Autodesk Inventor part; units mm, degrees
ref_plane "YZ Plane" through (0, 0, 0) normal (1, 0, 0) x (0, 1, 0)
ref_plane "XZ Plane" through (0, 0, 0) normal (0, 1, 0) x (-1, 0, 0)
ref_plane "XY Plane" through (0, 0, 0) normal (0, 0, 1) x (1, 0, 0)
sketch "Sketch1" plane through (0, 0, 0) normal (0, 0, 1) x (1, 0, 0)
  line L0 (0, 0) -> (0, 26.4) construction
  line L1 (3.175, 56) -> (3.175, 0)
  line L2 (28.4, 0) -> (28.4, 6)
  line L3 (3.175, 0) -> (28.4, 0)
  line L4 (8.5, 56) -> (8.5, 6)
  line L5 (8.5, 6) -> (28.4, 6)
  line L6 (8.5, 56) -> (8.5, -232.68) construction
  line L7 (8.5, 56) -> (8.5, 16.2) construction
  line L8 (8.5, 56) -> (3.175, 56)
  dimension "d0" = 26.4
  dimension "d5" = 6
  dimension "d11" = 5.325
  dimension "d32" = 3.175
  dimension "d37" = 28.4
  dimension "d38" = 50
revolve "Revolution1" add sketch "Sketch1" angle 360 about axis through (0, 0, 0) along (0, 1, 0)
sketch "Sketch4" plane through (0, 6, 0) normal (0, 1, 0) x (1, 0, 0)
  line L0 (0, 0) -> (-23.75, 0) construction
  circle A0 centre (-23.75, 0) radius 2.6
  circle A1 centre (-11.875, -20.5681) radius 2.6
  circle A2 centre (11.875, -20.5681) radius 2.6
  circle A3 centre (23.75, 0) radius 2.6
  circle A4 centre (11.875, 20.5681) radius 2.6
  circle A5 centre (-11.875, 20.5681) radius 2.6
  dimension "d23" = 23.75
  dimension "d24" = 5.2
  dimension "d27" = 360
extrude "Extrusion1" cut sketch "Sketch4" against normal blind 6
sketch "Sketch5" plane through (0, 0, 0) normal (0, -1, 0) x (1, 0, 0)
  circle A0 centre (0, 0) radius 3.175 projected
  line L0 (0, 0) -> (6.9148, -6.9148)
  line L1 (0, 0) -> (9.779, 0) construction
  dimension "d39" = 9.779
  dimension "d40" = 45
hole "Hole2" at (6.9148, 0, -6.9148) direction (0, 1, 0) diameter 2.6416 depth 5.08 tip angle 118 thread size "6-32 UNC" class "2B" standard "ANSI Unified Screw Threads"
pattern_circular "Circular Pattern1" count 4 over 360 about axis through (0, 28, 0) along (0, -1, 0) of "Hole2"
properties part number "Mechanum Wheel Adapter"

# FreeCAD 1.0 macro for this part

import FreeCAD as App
import Part
import Sketcher
Q = App.Units.Quantity

doc = App.newDocument("Part")
body = doc.addObject("PartDesign::Body", "Body")

sketch1 = body.newObject("Sketcher::SketchObject", "Sketch")
sketch1.AttachmentSupport = (doc.getObject("XY_Plane"), [""])
sketch1.MapMode = "FlatFace"
sketch1.addGeometry([
    Part.LineSegment(App.Vector(8, 56, 0), App.Vector(3, 56, 0)),
    Part.LineSegment(App.Vector(3, 56, 0), App.Vector(3, 0, 0)),
    Part.LineSegment(App.Vector(3, 0, 0), App.Vector(28, 0, 0)),
    Part.LineSegment(App.Vector(28, 0, 0), App.Vector(28, 6, 0)),
    Part.LineSegment(App.Vector(28, 6, 0), App.Vector(8, 6, 0)),
    Part.LineSegment(App.Vector(8, 6, 0), App.Vector(8, 56, 0)),
], False)
sketch1.addConstraint([
    Sketcher.Constraint("Coincident", 0, 2, 1, 1),
    Sketcher.Constraint("Coincident", 1, 2, 2, 1),
    Sketcher.Constraint("Coincident", 2, 2, 3, 1),
    Sketcher.Constraint("Coincident", 3, 2, 4, 1),
    Sketcher.Constraint("Coincident", 4, 2, 5, 1),
    Sketcher.Constraint("Coincident", 5, 2, 0, 1),
    Sketcher.Constraint("Horizontal", 0),
    Sketcher.Constraint("Vertical", 1),
    Sketcher.Constraint("Horizontal", 2),
    Sketcher.Constraint("Vertical", 3),
    Sketcher.Constraint("Horizontal", 4),
    Sketcher.Constraint("Vertical", 5),
    Sketcher.Constraint("PointOnObject", 1, 2, -1),
    Sketcher.Constraint("DistanceY", 3, 1, 3, 2, Q("6 mm")),
    Sketcher.Constraint("DistanceY", 5, 1, 5, 2, Q("50 mm")),
    Sketcher.Constraint("DistanceX", -1, 1, 2, 2, Q("28.4 mm")),
    Sketcher.Constraint("DistanceX", 0, 2, 0, 1, Q("5.325 mm")),
    Sketcher.Constraint("DistanceX", 4, 2, 4, 1, Q("19.9 mm")),
])
revolution = body.newObject("PartDesign::Revolution", "Revolution")
revolution.Profile = sketch1
revolution.ReferenceAxis = (sketch1, ["V_Axis"])
revolution.Angle = 360

sketch2 = body.newObject("Sketcher::SketchObject", "Sketch001")
sketch2.AttachmentSupport = (doc.getObject("XZ_Plane"), [""])
sketch2.MapMode = "FlatFace"
sketch2.AttachmentOffset = App.Placement(App.Vector(0, 0, -6), App.Rotation())
sketch2.addGeometry([
    Part.Circle(App.Vector(-23.8, 0, 0), App.Vector(0, 0, 1), 2.6),
    Part.Circle(App.Vector(-11.9, 20.6, 0), App.Vector(0, 0, 1), 2.6),
    Part.Circle(App.Vector(11.9, 20.6, 0), App.Vector(0, 0, 1), 2.6),
    Part.Circle(App.Vector(23.8, 0, 0), App.Vector(0, 0, 1), 2.6),
    Part.Circle(App.Vector(11.9, -20.6, 0), App.Vector(0, 0, 1), 2.6),
    Part.Circle(App.Vector(-11.9, -20.6, 0), App.Vector(0, 0, 1), 2.6),
], False)
sketch2.addConstraint([
    Sketcher.Constraint("Equal", 0, 1),
    Sketcher.Constraint("Equal", 1, 2),
    Sketcher.Constraint("Equal", 2, 3),
    Sketcher.Constraint("Equal", 3, 4),
    Sketcher.Constraint("Equal", 4, 5),
    Sketcher.Constraint("Symmetric", 0, 3, 3, 3, -1, 1),
    Sketcher.Constraint("Symmetric", 1, 3, 4, 3, -1, 1),
    Sketcher.Constraint("Symmetric", 2, 3, 5, 3, -1, 1),
    Sketcher.Constraint("Symmetric", 1, 3, 2, 3, -2),
    Sketcher.Constraint("PointOnObject", 0, 3, -1),
    Sketcher.Constraint("Diameter", 0, Q("5.2 mm")),
    Sketcher.Constraint("DistanceX", 0, 3, -1, 1, Q("23.75 mm")),
    Sketcher.Constraint("DistanceX", 1, 3, 2, 3, Q("23.75 mm")),
    Sketcher.Constraint("DistanceY", -1, 1, 1, 3, Q("20.568 mm")),
])
pocket1 = body.newObject("PartDesign::Pocket", "Pocket")
pocket1.Profile = sketch2
pocket1.Length = 6
pocket1.Reversed = True

sketch3 = body.newObject("Sketcher::SketchObject", "Sketch002")
sketch3.AttachmentSupport = (doc.getObject("XZ_Plane"), [""])
sketch3.MapMode = "FlatFace"
sketch3.addGeometry(Part.Circle(App.Vector(6.9, -6.9, 0), App.Vector(0, 0, 1), 1.3), False)
sketch3.addConstraint([
    Sketcher.Constraint("Diameter", 0, Q("2.6416 mm")),
    Sketcher.Constraint("DistanceX", -1, 1, 0, 3, Q("6.9148 mm")),
    Sketcher.Constraint("DistanceY", 0, 3, -1, 1, Q("6.9148 mm")),
])
doc.recompute()
hole = body.newObject("PartDesign::Hole", "Hole")
hole.Profile = sketch3
hole.ThreadType = "None"
hole.Diameter = 2.6416
hole.DepthType = "Dimension"
hole.Depth = 5.08
hole.DrillPoint = "Angled"
hole.DrillPointAngle = 118
doc.recompute()

polarpattern = body.newObject("PartDesign::PolarPattern", "PolarPattern")
polarpattern.Originals = [hole]
polarpattern.Axis = (doc.getObject("Y_Axis"), [""])
polarpattern.Angle = 360
polarpattern.Occurrences = 4
body.Tip = polarpattern

doc.recompute()
